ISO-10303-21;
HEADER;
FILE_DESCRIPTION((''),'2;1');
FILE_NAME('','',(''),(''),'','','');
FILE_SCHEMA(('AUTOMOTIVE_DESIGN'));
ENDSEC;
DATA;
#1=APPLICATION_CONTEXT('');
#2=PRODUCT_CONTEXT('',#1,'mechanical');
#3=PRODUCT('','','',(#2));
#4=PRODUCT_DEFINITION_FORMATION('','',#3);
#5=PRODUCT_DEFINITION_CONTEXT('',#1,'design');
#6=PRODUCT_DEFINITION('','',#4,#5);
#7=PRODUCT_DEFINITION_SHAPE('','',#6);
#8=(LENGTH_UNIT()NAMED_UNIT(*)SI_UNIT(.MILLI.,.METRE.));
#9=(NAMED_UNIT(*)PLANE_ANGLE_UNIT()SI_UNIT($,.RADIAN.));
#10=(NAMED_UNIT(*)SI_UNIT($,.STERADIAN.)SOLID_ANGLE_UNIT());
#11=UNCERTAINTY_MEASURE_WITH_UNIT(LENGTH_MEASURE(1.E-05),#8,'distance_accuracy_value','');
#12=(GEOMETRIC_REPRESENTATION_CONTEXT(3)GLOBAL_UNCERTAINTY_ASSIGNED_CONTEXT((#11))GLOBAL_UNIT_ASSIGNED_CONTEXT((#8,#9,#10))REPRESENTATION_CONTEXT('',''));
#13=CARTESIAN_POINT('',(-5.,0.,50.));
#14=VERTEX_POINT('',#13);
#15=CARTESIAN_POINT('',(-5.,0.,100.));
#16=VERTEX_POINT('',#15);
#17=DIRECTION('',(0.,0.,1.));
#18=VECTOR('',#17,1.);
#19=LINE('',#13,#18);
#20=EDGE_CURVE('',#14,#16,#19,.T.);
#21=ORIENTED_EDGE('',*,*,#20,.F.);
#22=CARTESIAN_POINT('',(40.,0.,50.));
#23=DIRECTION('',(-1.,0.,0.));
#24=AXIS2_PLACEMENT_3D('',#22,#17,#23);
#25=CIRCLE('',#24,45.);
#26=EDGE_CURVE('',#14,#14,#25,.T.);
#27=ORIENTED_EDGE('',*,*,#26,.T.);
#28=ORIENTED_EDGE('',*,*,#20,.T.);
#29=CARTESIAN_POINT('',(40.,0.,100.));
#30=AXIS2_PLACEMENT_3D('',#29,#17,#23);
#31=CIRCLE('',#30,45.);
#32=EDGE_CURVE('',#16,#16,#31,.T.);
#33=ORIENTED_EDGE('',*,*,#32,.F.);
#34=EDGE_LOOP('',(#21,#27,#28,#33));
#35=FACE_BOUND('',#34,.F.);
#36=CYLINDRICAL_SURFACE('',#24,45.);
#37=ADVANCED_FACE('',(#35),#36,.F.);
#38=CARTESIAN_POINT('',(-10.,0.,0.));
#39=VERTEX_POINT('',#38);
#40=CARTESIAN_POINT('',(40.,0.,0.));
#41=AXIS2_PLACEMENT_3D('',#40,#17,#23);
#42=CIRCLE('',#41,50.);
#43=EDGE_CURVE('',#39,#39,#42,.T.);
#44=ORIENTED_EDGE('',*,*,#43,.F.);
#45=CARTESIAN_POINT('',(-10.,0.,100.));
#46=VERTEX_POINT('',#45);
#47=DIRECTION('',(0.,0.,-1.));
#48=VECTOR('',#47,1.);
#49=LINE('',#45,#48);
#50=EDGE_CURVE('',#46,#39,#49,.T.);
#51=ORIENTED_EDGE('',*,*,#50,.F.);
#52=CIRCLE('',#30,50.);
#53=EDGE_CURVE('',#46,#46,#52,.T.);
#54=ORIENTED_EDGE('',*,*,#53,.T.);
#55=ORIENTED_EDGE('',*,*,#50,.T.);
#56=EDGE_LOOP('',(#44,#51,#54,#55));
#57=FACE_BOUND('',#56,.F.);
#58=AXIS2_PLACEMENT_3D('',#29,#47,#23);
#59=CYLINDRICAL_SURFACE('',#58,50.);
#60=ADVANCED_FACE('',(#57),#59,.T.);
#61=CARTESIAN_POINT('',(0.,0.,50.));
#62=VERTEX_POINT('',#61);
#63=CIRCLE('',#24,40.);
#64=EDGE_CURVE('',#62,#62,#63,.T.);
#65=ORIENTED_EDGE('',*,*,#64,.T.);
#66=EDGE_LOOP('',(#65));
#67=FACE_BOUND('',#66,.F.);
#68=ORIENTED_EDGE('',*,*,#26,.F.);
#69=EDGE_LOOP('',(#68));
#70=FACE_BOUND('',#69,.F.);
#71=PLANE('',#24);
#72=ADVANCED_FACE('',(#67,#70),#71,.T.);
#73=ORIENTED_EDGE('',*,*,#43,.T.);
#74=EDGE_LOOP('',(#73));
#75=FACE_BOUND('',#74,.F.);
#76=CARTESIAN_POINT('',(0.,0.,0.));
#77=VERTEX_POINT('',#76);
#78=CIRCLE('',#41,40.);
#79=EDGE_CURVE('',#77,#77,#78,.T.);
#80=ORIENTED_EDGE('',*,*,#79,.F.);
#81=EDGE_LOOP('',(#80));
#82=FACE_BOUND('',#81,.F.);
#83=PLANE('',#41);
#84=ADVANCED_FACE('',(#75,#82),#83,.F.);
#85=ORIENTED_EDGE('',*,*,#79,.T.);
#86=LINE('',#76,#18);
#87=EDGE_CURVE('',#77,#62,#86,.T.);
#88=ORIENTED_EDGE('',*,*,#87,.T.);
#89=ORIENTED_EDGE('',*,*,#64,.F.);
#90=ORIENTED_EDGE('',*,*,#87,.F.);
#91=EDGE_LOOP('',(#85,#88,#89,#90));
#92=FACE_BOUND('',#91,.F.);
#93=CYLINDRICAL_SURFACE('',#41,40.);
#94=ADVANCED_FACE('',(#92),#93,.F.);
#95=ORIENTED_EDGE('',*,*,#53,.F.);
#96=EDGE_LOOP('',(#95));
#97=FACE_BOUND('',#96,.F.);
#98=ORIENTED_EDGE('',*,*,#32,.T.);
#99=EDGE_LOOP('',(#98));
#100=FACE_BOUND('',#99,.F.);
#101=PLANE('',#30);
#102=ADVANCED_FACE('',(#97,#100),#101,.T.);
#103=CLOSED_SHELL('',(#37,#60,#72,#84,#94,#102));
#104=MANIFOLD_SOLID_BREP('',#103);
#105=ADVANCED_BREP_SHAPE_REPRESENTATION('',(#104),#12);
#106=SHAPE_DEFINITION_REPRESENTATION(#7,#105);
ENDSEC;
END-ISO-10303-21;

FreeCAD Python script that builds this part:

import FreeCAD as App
import Part
import Sketcher
Q = App.Units.Quantity

doc = App.newDocument("Part")
body = doc.addObject("PartDesign::Body", "Body")

# Sketch on XZ plane
sketch1 = doc.addObject("Sketcher::SketchObject", "Sketch")
body.addObject(sketch1)
sketch1.AttachmentSupport = (doc.XZ_Plane, [""])
sketch1.MapMode = "FlatFace"
sketch1.addGeometry([
    Part.LineSegment(App.Vector(0, 0, 0), App.Vector(0, 50, 0)),  # 0
    Part.LineSegment(App.Vector(0, 50, 0), App.Vector(-5, 50, 0)),  # 1
    Part.LineSegment(App.Vector(-5, 50, 0), App.Vector(-5, 100, 0)),  # 2
    Part.LineSegment(App.Vector(-5, 100, 0), App.Vector(-10, 100, 0)),  # 3
    Part.LineSegment(App.Vector(-10, 100, 0), App.Vector(-10, 0, 0)),  # 4
    Part.LineSegment(App.Vector(-10, 0, 0), App.Vector(0, 0, 0)),  # 5
], False)
sketch1.addGeometry(Part.LineSegment(App.Vector(40, 0, 0), App.Vector(40, 100, 0)), True)  # axis
sketch1.addConstraint([
    Sketcher.Constraint("Coincident", 0, 2, 1, 1),
    Sketcher.Constraint("Coincident", 1, 2, 2, 1),
    Sketcher.Constraint("Coincident", 2, 2, 3, 1),
    Sketcher.Constraint("Coincident", 3, 2, 4, 1),
    Sketcher.Constraint("Coincident", 4, 2, 5, 1),
    Sketcher.Constraint("Coincident", 5, 2, 0, 1),
    Sketcher.Constraint("Vertical", 0),
    Sketcher.Constraint("Horizontal", 1),
    Sketcher.Constraint("Vertical", 2),
    Sketcher.Constraint("Horizontal", 3),
    Sketcher.Constraint("Vertical", 4),
    Sketcher.Constraint("Horizontal", 5),
    Sketcher.Constraint("Vertical", 6),
    Sketcher.Constraint("Coincident", 5, 2, -1, 1),
    Sketcher.Constraint("PointOnObject", 6, 1, -1),
    Sketcher.Constraint("Horizontal", 3, 2, 6, 2),
    Sketcher.Constraint("Equal", 1, 3),
    Sketcher.Constraint("Equal", 0, 2),
    Sketcher.Constraint("DistanceX", 1, 2, 1, 1, Q("5 mm")),
    Sketcher.Constraint("DistanceY", 0, 1, 0, 2, Q("50 mm")),
    Sketcher.Constraint("DistanceX", -1, 1, 6, 1, Q("40 mm")),
])
revolution = doc.addObject("PartDesign::Revolution", "Revolution")
body.addObject(revolution)
revolution.Profile = sketch1
revolution.ReferenceAxis = (sketch1, ["Axis0"])
revolution.Angle = 360

doc.recompute()
